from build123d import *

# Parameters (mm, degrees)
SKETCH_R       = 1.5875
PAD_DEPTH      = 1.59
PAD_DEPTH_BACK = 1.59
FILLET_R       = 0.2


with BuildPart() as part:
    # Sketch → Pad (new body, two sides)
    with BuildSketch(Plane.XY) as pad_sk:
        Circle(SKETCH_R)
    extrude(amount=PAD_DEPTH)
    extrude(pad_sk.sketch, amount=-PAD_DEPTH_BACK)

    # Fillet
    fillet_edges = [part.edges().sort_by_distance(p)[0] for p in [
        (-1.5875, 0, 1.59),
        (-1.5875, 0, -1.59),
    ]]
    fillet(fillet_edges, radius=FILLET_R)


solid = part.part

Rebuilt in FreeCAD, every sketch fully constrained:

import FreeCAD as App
import Part
import Sketcher
from FreeCAD import Vector
Q = App.Units.Quantity


def edges_at(feature, points):
    """Names of the edges that pass closest to the given points."""
    edges = feature.Shape.Edges
    near = lambda p: min(range(len(edges)), key=lambda i: edges[i].distToShape(Part.Vertex(*p))[0])
    return sorted({f"Edge{near(p) + 1}" for p in points})

doc = App.newDocument("Part")
body = doc.addObject("PartDesign::Body", "Body")

# Sketch on XY plane
sketch1 = body.newObject("Sketcher::SketchObject", "Sketch")
sketch1.AttachmentSupport = (doc.getObject("XY_Plane"), [""])
sketch1.MapMode = "FlatFace"
sketch1.addGeometry(Part.Circle(Vector(0, 0, 0), Vector(0, 0, 1), 1.5875), False)
sketch1.addConstraint(Sketcher.Constraint("Coincident", 0, 3, -1, 1))
sketch1.addConstraint(Sketcher.Constraint("Diameter", 0, Q("3.175 mm")))
pad1 = body.newObject("PartDesign::Pad", "Pad")
pad1.Profile = sketch1
pad1.Type = "TwoLengths"
pad1.Length = 1.59
pad1.Length2 = 1.59
doc.recompute()

fillet = body.newObject("PartDesign::Fillet", "Fillet")
fillet.Base = (pad1, edges_at(pad1, [(-1.587, 0, 1.59), (-1.587, 0, -1.59)]))
fillet.Radius = 0.2

doc.recompute()
